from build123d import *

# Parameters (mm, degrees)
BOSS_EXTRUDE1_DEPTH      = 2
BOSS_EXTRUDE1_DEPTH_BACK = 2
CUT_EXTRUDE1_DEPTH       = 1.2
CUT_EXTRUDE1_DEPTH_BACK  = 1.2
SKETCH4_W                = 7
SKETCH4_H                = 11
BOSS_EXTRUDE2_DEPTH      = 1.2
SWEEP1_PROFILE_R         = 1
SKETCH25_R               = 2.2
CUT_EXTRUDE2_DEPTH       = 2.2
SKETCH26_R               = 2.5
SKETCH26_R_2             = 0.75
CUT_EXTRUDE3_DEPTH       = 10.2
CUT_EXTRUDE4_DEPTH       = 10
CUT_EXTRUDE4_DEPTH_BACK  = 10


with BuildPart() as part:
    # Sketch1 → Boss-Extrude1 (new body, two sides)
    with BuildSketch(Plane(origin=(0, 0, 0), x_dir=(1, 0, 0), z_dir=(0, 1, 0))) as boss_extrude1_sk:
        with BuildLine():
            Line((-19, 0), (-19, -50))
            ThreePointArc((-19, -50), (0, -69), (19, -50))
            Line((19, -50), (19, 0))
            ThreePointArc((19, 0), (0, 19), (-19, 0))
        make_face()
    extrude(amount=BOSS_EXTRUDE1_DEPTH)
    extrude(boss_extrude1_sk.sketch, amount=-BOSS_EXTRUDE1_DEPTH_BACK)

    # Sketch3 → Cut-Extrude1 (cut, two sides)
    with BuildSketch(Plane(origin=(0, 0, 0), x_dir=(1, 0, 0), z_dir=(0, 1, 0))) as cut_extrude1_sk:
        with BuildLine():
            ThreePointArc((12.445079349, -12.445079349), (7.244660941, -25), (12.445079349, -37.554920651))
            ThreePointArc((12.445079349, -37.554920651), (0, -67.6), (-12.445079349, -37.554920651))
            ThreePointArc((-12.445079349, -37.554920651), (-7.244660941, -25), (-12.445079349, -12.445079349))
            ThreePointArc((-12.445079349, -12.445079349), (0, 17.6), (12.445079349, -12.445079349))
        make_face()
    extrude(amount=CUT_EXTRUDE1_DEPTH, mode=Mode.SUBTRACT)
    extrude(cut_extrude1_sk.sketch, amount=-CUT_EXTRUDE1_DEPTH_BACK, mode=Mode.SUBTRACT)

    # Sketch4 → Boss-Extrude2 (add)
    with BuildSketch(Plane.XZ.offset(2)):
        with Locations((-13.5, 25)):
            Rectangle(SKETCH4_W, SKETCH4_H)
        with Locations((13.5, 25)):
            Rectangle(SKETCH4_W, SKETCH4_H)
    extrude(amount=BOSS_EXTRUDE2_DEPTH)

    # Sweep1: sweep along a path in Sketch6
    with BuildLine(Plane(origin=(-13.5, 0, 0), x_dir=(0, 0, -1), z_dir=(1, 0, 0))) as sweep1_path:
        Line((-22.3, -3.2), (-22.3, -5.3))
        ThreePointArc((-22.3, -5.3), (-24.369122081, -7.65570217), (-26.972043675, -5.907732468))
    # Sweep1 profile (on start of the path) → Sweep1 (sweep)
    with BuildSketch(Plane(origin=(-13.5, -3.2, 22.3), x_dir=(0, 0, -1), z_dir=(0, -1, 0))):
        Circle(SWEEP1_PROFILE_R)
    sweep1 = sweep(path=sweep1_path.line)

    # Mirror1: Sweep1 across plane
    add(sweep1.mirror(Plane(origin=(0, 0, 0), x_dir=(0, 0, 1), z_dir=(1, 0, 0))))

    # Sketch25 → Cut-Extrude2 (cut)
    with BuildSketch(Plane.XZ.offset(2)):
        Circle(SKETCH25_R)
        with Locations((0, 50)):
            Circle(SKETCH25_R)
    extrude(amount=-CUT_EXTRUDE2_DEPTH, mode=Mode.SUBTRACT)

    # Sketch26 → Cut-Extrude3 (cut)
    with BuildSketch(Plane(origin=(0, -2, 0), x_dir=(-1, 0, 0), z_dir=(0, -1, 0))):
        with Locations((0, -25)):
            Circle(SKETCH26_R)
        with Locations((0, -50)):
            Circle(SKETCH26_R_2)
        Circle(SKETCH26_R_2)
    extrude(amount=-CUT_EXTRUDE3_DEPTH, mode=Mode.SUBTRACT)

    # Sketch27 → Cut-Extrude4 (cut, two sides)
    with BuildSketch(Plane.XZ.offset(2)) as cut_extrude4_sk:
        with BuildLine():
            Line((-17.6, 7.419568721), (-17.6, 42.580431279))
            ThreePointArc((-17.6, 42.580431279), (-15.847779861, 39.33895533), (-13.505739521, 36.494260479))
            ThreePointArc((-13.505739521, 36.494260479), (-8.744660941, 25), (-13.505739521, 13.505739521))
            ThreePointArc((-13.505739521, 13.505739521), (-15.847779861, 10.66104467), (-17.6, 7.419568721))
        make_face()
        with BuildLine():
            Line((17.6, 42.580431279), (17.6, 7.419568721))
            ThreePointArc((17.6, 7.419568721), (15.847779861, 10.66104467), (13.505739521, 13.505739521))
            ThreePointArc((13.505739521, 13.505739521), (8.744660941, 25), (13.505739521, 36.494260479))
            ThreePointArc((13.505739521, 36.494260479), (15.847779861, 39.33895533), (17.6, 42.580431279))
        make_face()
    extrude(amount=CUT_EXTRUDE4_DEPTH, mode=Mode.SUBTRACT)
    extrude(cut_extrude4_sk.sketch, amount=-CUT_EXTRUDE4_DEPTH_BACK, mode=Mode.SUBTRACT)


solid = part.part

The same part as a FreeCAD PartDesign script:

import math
import FreeCAD as App
import Part
import Sketcher


def add_polygon(sketch, points):
    """Adds a closed chain of lines whose ends are joined by coincident constraints."""
    first, n = sketch.GeometryCount, len(points)
    for a, b in zip(points, points[1:] + points[:1]):
        sketch.addGeometry(Part.LineSegment(App.Vector(*a, 0), App.Vector(*b, 0)), False)
    for i in range(n):
        sketch.addConstraint(Sketcher.Constraint("Coincident", first + i, 2, first + (i + 1) % n, 1))

doc = App.newDocument("Part")
body = doc.addObject("PartDesign::Body", "Body")

# Sketch on XZ plane
sketch1 = body.newObject("Sketcher::SketchObject", "Sketch")
sketch1.AttachmentSupport = (doc.getObject("XZ_Plane"), [""])
sketch1.MapMode = "FlatFace"
sketch1.addGeometry(Part.LineSegment(App.Vector(-19, 0, 0), App.Vector(-19, 50, 0)), False)
sketch1.addGeometry(Part.ArcOfCircle(Part.Circle(App.Vector(0, 50, 0), App.Vector(0, 0, 1), 19), math.radians(0), math.radians(180)), False)
sketch1.addGeometry(Part.LineSegment(App.Vector(19, 50, 0), App.Vector(19, 0, 0)), False)
sketch1.addGeometry(Part.ArcOfCircle(Part.Circle(App.Vector(0, 0, 0), App.Vector(0, 0, 1), 19), math.radians(180), math.radians(360)), False)
sketch1.addConstraint(Sketcher.Constraint("Tangent", 0, 2, 1, 2))
sketch1.addConstraint(Sketcher.Constraint("Tangent", 1, 1, 2, 1))
sketch1.addConstraint(Sketcher.Constraint("Tangent", 2, 2, 3, 2))
sketch1.addConstraint(Sketcher.Constraint("Tangent", 3, 1, 0, 1))
sketch1.addConstraint(Sketcher.Constraint("Vertical", 0))
sketch1.addConstraint(Sketcher.Constraint("Vertical", 2))
sketch1.addConstraint(Sketcher.Constraint("Coincident", 3, 3, -1, 1))
sketch1.addConstraint(Sketcher.Constraint("Radius", 1, 19.0))
sketch1.addConstraint(Sketcher.Constraint("DistanceY", 0, 1, 0, 2, 50.0))
pad1 = body.newObject("PartDesign::Pad", "Pad")
pad1.Profile = sketch1
pad1.Type = "TwoLengths"
pad1.Length = 2
pad1.Length2 = 2
pad1.Reversed = True

# Sketch on XZ plane
sketch2 = body.newObject("Sketcher::SketchObject", "Sketch001")
sketch2.AttachmentSupport = (doc.getObject("XZ_Plane"), [""])
sketch2.MapMode = "FlatFace"
sketch2.addGeometry(Part.ArcOfCircle(Part.Circle(App.Vector(25, 25, 0), App.Vector(0, 0, 1), 17.755339), math.radians(135), math.radians(225)), False)
sketch2.addGeometry(Part.ArcOfCircle(Part.Circle(App.Vector(0, 0, 0), App.Vector(0, 0, 1), 17.6), math.radians(135), math.radians(405)), False)
sketch2.addGeometry(Part.ArcOfCircle(Part.Circle(App.Vector(-25, 25, 0), App.Vector(0, 0, 1), 17.755339), math.radians(-45), math.radians(45)), False)
sketch2.addGeometry(Part.ArcOfCircle(Part.Circle(App.Vector(0, 50, 0), App.Vector(0, 0, 1), 17.6), math.radians(-45), math.radians(225)), False)
sketch2.addConstraint(Sketcher.Constraint("Tangent", 0, 2, 1, 2))
sketch2.addConstraint(Sketcher.Constraint("Tangent", 1, 1, 2, 1))
sketch2.addConstraint(Sketcher.Constraint("Tangent", 2, 2, 3, 2))
sketch2.addConstraint(Sketcher.Constraint("Tangent", 3, 1, 0, 1))
sketch2.addConstraint(Sketcher.Constraint("Coincident", 1, 3, -1, 1))
sketch2.addConstraint(Sketcher.Constraint("Equal", 0, 2))
sketch2.addConstraint(Sketcher.Constraint("Equal", 1, 3))
sketch2.addConstraint(Sketcher.Constraint("PointOnObject", 3, 3, -2))
sketch2.addConstraint(Sketcher.Constraint("Radius", 1, 17.6))
sketch2.addConstraint(Sketcher.Constraint("DistanceX", -1, 1, 0, 3, 25.0))
sketch2.addConstraint(Sketcher.Constraint("DistanceY", -1, 1, 0, 3, 25.0))
pocket1 = body.newObject("PartDesign::Pocket", "Pocket")
pocket1.Profile = sketch2
pocket1.Type = "TwoLengths"
pocket1.Length = 1.2
pocket1.Length2 = 1.2

# Sketch on XZ plane
sketch3 = body.newObject("Sketcher::SketchObject", "Sketch002")
sketch3.AttachmentSupport = (doc.getObject("XZ_Plane"), [""])
sketch3.MapMode = "FlatFace"
sketch3.AttachmentOffset = App.Placement(App.Vector(0, 0, 2), App.Rotation())
add_polygon(sketch3, [(-17, 30.5), (-17, 19.5), (-10, 19.5), (-10, 30.5)])  # lines 0-3
add_polygon(sketch3, [(10, 30.5), (10, 19.5), (17, 19.5), (17, 30.5)])  # lines 4-7
sketch3.addConstraint(Sketcher.Constraint("Vertical", 0))
sketch3.addConstraint(Sketcher.Constraint("Horizontal", 1))
sketch3.addConstraint(Sketcher.Constraint("Vertical", 2))
sketch3.addConstraint(Sketcher.Constraint("Horizontal", 3))
sketch3.addConstraint(Sketcher.Constraint("Vertical", 4))
sketch3.addConstraint(Sketcher.Constraint("Horizontal", 5))
sketch3.addConstraint(Sketcher.Constraint("Vertical", 6))
sketch3.addConstraint(Sketcher.Constraint("Horizontal", 7))
sketch3.addConstraint(Sketcher.Constraint("Symmetric", 1, 2, 4, 2, -2))
sketch3.addConstraint(Sketcher.Constraint("Symmetric", 3, 2, 6, 2, -2))
sketch3.addConstraint(Sketcher.Constraint("DistanceX", 1, 1, 1, 2, 7.0))
sketch3.addConstraint(Sketcher.Constraint("DistanceY", 0, 2, 0, 1, 11.0))
sketch3.addConstraint(Sketcher.Constraint("DistanceX", 0, 2, -1, 1, 17.0))
sketch3.addConstraint(Sketcher.Constraint("DistanceY", -1, 1, 0, 2, 19.5))
pad2 = body.newObject("PartDesign::Pad", "Pad001")
pad2.Profile = sketch3
pad2.Length = 1.2

# Sketch on XZ plane
sketch4 = body.newObject("Sketcher::SketchObject", "Sketch003")
sketch4.AttachmentSupport = (doc.getObject("XZ_Plane"), [""])
sketch4.MapMode = "FlatFace"
sketch4.AttachmentOffset = App.Placement(App.Vector(0, 0, 3.2), App.Rotation())
sketch4.addGeometry(Part.Circle(App.Vector(-13.5, 22.3, 0), App.Vector(0, 0, 1), 1), False)
sketch4.addConstraint(Sketcher.Constraint("Diameter", 0, 2.0))
sketch4.addConstraint(Sketcher.Constraint("DistanceX", 0, 3, -1, 1, 13.5))
sketch4.addConstraint(Sketcher.Constraint("DistanceY", -1, 1, 0, 3, 22.3))

# Sketch on YZ plane
sketch5 = body.newObject("Sketcher::SketchObject", "Sketch004")
sketch5.AttachmentSupport = (doc.getObject("YZ_Plane"), [""])
sketch5.MapMode = "FlatFace"
sketch5.AttachmentOffset = App.Placement(App.Vector(0, 0, -13.5), App.Rotation())
sketch5.addGeometry(Part.LineSegment(App.Vector(-3.2, 22.3, 0), App.Vector(-5.3, 22.3, 0)), False)
sketch5.addGeometry(Part.ArcOfCircle(Part.Circle(App.Vector(-5.3, 24.675548, 0), App.Vector(0, 0, 1), 2.375548), math.radians(104.822671), math.radians(270)), False)
sketch5.addConstraint(Sketcher.Constraint("Tangent", 0, 2, 1, 2))
sketch5.addConstraint(Sketcher.Constraint("Horizontal", 0))
sketch5.addConstraint(Sketcher.Constraint("DistanceX", 0, 2, 0, 1, 2.1))
sketch5.addConstraint(Sketcher.Constraint("DistanceX", 1, 3, -1, 1, 5.3))
sketch5.addConstraint(Sketcher.Constraint("DistanceY", -1, 1, 0, 1, 22.3))
sketch5.addConstraint(Sketcher.Constraint("Radius", 1, 2.375548))
sketch5.addConstraint(Sketcher.Constraint("DistanceX", 1, 1, -1, 1, 5.907732))
doc.recompute()

additivepipe = body.newObject("PartDesign::AdditivePipe", "AdditivePipe")
additivepipe.Profile = sketch4
additivepipe.Spine = (sketch5, ["Edge1", "Edge2"])
doc.recompute()

mirrored = body.newObject("PartDesign::Mirrored", "Mirrored")
mirrored.Originals = [additivepipe]
mirrored.MirrorPlane = (doc.getObject("YZ_Plane"), [""])
body.Tip = mirrored

# Sketch on XZ plane
sketch6 = body.newObject("Sketcher::SketchObject", "Sketch005")
sketch6.AttachmentSupport = (doc.getObject("XZ_Plane"), [""])
sketch6.MapMode = "FlatFace"
sketch6.AttachmentOffset = App.Placement(App.Vector(0, 0, 2), App.Rotation())
sketch6.addGeometry(Part.Circle(App.Vector(0, 0, 0), App.Vector(0, 0, 1), 2.2), False)
sketch6.addGeometry(Part.Circle(App.Vector(0, 50, 0), App.Vector(0, 0, 1), 2.2), False)
sketch6.addConstraint(Sketcher.Constraint("Coincident", 0, 3, -1, 1))
sketch6.addConstraint(Sketcher.Constraint("Equal", 0, 1))
sketch6.addConstraint(Sketcher.Constraint("PointOnObject", 1, 3, -2))
sketch6.addConstraint(Sketcher.Constraint("Diameter", 0, 4.4))
sketch6.addConstraint(Sketcher.Constraint("DistanceY", -1, 1, 1, 3, 50.0))
pocket2 = body.newObject("PartDesign::Pocket", "Pocket001")
pocket2.Profile = sketch6
pocket2.Length = 2.2

# Sketch on XZ plane
sketch7 = body.newObject("Sketcher::SketchObject", "Sketch006")
sketch7.AttachmentSupport = (doc.getObject("XZ_Plane"), [""])
sketch7.MapMode = "FlatFace"
sketch7.AttachmentOffset = App.Placement(App.Vector(0, 0, 2), App.Rotation())
sketch7.addGeometry(Part.Circle(App.Vector(0, 25, 0), App.Vector(0, 0, 1), 2.5), False)
sketch7.addGeometry(Part.Circle(App.Vector(0, 50, 0), App.Vector(0, 0, 1), 0.75), False)
sketch7.addGeometry(Part.Circle(App.Vector(0, 0, 0), App.Vector(0, 0, 1), 0.75), False)
sketch7.addConstraint(Sketcher.Constraint("Coincident", 2, 3, -1, 1))
sketch7.addConstraint(Sketcher.Constraint("Equal", 1, 2))
sketch7.addConstraint(Sketcher.Constraint("PointOnObject", 0, 3, -2))
sketch7.addConstraint(Sketcher.Constraint("PointOnObject", 1, 3, -2))
sketch7.addConstraint(Sketcher.Constraint("Diameter", 0, 5.0))
sketch7.addConstraint(Sketcher.Constraint("Diameter", 1, 1.5))
sketch7.addConstraint(Sketcher.Constraint("DistanceY", -1, 1, 0, 3, 25.0))
sketch7.addConstraint(Sketcher.Constraint("DistanceY", -1, 1, 1, 3, 50.0))
pocket3 = body.newObject("PartDesign::Pocket", "Pocket002")
pocket3.Profile = sketch7
pocket3.Length = 10.2

# Sketch on XZ plane
sketch8 = body.newObject("Sketcher::SketchObject", "Sketch007")
sketch8.AttachmentSupport = (doc.getObject("XZ_Plane"), [""])
sketch8.MapMode = "FlatFace"
sketch8.AttachmentOffset = App.Placement(App.Vector(0, 0, 2), App.Rotation())
sketch8.addGeometry(Part.LineSegment(App.Vector(-17.6, 42.580431, 0), App.Vector(-17.6, 7.419569, 0)), False)
sketch8.addGeometry(Part.ArcOfCircle(Part.Circle(App.Vector(0, 0, 0), App.Vector(0, 0, 1), 19.1), math.radians(135), math.radians(157.141346)), False)
sketch8.addGeometry(Part.ArcOfCircle(Part.Circle(App.Vector(-25, 25, 0), App.Vector(0, 0, 1), 16.255339), math.radians(-45), math.radians(45)), False)
sketch8.addGeometry(Part.ArcOfCircle(Part.Circle(App.Vector(0, 50, 0), App.Vector(0, 0, 1), 19.1), math.radians(-157.141346), math.radians(-135)), False)
sketch8.addGeometry(Part.LineSegment(App.Vector(17.6, 7.419569, 0), App.Vector(17.6, 42.580431, 0)), False)
sketch8.addGeometry(Part.ArcOfCircle(Part.Circle(App.Vector(0, 50, 0), App.Vector(0, 0, 1), 19.1), math.radians(-45), math.radians(-22.858654)), False)
sketch8.addGeometry(Part.ArcOfCircle(Part.Circle(App.Vector(25, 25, 0), App.Vector(0, 0, 1), 16.255339), math.radians(135), math.radians(225)), False)
sketch8.addGeometry(Part.ArcOfCircle(Part.Circle(App.Vector(0, 0, 0), App.Vector(0, 0, 1), 19.1), math.radians(22.858654), math.radians(45)), False)
sketch8.addConstraint(Sketcher.Constraint("Coincident", 0, 2, 1, 2))
sketch8.addConstraint(Sketcher.Constraint("Tangent", 1, 1, 2, 1))
sketch8.addConstraint(Sketcher.Constraint("Tangent", 2, 2, 3, 2))
sketch8.addConstraint(Sketcher.Constraint("Coincident", 3, 1, 0, 1))
sketch8.addConstraint(Sketcher.Constraint("Coincident", 4, 2, 5, 2))
sketch8.addConstraint(Sketcher.Constraint("Tangent", 5, 1, 6, 1))
sketch8.addConstraint(Sketcher.Constraint("Tangent", 6, 2, 7, 2))
sketch8.addConstraint(Sketcher.Constraint("Coincident", 7, 1, 4, 1))
sketch8.addConstraint(Sketcher.Constraint("Vertical", 0))
sketch8.addConstraint(Sketcher.Constraint("Vertical", 4))
sketch8.addConstraint(Sketcher.Constraint("Coincident", 1, 3, -1, 1))
sketch8.addConstraint(Sketcher.Constraint("Coincident", 7, 3, -1, 1))
sketch8.addConstraint(Sketcher.Constraint("Coincident", 5, 3, 3, 3))
sketch8.addConstraint(Sketcher.Constraint("Equal", 1, 3))
sketch8.addConstraint(Sketcher.Constraint("Equal", 3, 5))
sketch8.addConstraint(Sketcher.Constraint("Equal", 2, 6))
sketch8.addConstraint(Sketcher.Constraint("Equal", 5, 7))
sketch8.addConstraint(Sketcher.Constraint("Symmetric", 3, 1, 4, 2, -2))
sketch8.addConstraint(Sketcher.Constraint("Radius", 1, 19.1))
sketch8.addConstraint(Sketcher.Constraint("DistanceX", 2, 3, -1, 1, 25.0))
sketch8.addConstraint(Sketcher.Constraint("DistanceY", -1, 1, 2, 3, 25.0))
sketch8.addConstraint(Sketcher.Constraint("DistanceX", 0, 2, -1, 1, 17.6))
pocket4 = body.newObject("PartDesign::Pocket", "Pocket003")
pocket4.Profile = sketch8
pocket4.Type = "ThroughAll"
pocket4.Midplane = True

doc.recompute()
